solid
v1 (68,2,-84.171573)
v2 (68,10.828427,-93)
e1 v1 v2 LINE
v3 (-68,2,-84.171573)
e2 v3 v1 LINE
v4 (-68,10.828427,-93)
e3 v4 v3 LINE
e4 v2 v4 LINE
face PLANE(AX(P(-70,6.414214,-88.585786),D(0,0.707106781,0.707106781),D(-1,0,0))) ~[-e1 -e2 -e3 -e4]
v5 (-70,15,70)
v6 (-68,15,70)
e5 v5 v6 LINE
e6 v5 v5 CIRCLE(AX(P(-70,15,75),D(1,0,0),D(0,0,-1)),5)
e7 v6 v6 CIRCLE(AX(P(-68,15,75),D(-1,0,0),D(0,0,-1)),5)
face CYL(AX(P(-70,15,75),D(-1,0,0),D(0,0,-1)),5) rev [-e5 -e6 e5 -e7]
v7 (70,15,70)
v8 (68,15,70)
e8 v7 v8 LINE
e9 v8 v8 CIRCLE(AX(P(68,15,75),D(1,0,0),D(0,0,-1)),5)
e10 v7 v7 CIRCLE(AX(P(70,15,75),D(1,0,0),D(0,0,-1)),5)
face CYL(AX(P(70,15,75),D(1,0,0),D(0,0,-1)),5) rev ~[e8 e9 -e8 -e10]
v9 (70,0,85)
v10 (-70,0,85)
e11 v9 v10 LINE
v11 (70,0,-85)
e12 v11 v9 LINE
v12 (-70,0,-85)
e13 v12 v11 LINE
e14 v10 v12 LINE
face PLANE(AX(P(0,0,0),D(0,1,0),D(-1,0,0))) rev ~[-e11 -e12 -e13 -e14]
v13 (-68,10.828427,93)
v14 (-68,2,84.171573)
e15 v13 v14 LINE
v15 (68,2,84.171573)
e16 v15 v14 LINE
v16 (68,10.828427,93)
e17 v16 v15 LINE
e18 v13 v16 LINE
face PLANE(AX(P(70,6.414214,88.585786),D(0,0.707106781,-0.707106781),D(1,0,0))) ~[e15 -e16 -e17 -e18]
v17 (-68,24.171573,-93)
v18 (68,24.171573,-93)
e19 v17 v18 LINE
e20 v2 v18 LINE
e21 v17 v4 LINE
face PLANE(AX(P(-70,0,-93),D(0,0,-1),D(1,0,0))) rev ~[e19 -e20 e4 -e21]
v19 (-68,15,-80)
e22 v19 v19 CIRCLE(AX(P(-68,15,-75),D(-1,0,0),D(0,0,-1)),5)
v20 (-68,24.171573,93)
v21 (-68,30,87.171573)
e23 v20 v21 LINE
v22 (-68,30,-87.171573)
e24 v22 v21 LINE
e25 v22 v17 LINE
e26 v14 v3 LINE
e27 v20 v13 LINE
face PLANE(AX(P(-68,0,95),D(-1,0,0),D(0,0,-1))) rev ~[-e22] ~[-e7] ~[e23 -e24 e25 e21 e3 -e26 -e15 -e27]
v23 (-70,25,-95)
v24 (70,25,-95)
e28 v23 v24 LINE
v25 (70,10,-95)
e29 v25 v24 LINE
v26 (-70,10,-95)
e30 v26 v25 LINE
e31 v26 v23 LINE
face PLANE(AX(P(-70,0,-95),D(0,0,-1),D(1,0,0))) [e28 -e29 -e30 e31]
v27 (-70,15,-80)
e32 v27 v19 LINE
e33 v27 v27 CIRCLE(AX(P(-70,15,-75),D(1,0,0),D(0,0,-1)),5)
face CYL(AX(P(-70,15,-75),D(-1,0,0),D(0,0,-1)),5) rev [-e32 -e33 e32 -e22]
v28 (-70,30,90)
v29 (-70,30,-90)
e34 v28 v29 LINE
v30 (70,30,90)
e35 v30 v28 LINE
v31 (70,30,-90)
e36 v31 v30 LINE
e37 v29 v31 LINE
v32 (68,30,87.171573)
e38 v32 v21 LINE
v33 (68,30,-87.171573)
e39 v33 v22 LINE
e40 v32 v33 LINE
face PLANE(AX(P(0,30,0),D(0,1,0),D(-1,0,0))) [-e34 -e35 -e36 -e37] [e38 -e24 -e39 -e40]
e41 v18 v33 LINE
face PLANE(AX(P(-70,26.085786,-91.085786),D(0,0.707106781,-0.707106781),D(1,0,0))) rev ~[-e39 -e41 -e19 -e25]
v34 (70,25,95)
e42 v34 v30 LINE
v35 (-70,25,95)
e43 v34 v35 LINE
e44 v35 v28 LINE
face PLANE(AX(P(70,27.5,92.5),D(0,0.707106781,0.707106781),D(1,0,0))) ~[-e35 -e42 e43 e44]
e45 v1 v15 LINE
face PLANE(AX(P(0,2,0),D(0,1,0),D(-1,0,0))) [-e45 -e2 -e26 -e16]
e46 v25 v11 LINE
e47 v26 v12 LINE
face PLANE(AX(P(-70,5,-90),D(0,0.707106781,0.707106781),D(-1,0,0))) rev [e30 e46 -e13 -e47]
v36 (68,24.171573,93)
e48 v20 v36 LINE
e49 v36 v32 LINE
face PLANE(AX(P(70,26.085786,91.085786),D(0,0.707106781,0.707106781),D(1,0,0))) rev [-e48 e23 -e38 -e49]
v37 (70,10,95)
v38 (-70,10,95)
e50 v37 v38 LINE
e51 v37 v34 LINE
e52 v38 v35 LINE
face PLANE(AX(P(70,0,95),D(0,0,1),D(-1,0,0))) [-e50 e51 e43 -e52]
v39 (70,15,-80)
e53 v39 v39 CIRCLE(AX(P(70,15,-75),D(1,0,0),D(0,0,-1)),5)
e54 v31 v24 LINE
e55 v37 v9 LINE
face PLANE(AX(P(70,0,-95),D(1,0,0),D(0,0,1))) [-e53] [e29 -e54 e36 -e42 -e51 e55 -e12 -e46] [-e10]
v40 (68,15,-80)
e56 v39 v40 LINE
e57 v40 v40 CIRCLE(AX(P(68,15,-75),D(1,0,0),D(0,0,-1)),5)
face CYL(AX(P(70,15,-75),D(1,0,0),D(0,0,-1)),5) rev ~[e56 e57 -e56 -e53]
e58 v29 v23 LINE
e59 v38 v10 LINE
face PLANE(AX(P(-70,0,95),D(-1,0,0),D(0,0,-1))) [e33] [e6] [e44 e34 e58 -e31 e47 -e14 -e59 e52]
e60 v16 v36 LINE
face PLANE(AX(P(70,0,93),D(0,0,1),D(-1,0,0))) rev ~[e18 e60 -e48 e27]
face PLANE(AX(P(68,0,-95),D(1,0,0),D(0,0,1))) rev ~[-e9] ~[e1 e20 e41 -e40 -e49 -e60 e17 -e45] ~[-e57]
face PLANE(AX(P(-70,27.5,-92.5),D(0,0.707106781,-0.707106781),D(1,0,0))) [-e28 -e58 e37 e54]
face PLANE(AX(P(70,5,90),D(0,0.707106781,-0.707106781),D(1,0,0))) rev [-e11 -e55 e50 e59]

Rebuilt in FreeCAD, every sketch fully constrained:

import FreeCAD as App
import Part
import Sketcher
from FreeCAD import Vector
Q = App.Units.Quantity


def edges_at(feature, points):
    """Names of the edges that pass closest to the given points."""
    edges = feature.Shape.Edges
    near = lambda p: min(range(len(edges)), key=lambda i: edges[i].distToShape(Part.Vertex(*p))[0])
    return sorted({f"Edge{near(p) + 1}" for p in points})


def faces_at(feature, points):
    """Names of the faces that lie closest to the given points."""
    faces = feature.Shape.Faces
    near = lambda p: min(range(len(faces)), key=lambda i: faces[i].distToShape(Part.Vertex(*p))[0])
    return sorted({f"Face{near(p) + 1}" for p in points})


def add_polygon(sketch, points):
    """Adds a closed chain of lines whose ends are joined by coincident constraints."""
    first, n = sketch.GeometryCount, len(points)
    for a, b in zip(points, points[1:] + points[:1]):
        sketch.addGeometry(Part.LineSegment(App.Vector(*a, 0), App.Vector(*b, 0)), False)
    for i in range(n):
        sketch.addConstraint(Sketcher.Constraint("Coincident", first + i, 2, first + (i + 1) % n, 1))

doc = App.newDocument("Part")
body = doc.addObject("PartDesign::Body", "Body")

# Sketch on XZ plane
sketch1 = body.newObject("Sketcher::SketchObject", "Sketch")
sketch1.AttachmentSupport = (doc.getObject("XZ_Plane"), [""])
sketch1.MapMode = "FlatFace"
add_polygon(sketch1, [(-70, 95), (70, 95), (70, -95), (-70, -95)])  # lines 0-3
sketch1.addConstraint([
    Sketcher.Constraint("Horizontal", 0),
    Sketcher.Constraint("Vertical", 1),
    Sketcher.Constraint("Horizontal", 2),
    Sketcher.Constraint("Vertical", 3),
    Sketcher.Constraint("Symmetric", 0, 2, 2, 2, -1, 1),
    Sketcher.Constraint("DistanceX", 0, 1, 0, 2, Q("140 mm")),
    Sketcher.Constraint("DistanceY", 1, 2, 1, 1, Q("190 mm")),
])
pad1 = body.newObject("PartDesign::Pad", "Pad")
pad1.Profile = sketch1
pad1.Length = 30
pad1.Reversed = True
doc.recompute()

chamfer = body.newObject("PartDesign::Chamfer", "Chamfer")
chamfer.Base = (pad1, edges_at(pad1, [(0, 0, 95), (0, 0, -95)]))
chamfer.Size = 10
doc.recompute()

chamfer2 = body.newObject("PartDesign::Chamfer", "Chamfer001")
chamfer2.Base = (chamfer, edges_at(chamfer, [(0, 30, 95), (0, 30, -95)]))
chamfer2.Size = 5
doc.recompute()

thickness = body.newObject("PartDesign::Thickness", "Thickness")
thickness.Base = (chamfer2, faces_at(chamfer2, [(23.333, 30, 30)]))
thickness.Value = 2
thickness.Reversed = True
thickness.Join = "Intersection"

# Sketch on YZ plane
sketch2 = body.newObject("Sketcher::SketchObject", "Sketch001")
sketch2.AttachmentSupport = (doc.getObject("YZ_Plane"), [""])
sketch2.MapMode = "FlatFace"
sketch2.AttachmentOffset = App.Placement(Vector(0, 0, 70), App.Rotation())
sketch2.addGeometry([
    Part.Circle(Vector(15, 75, 0), Vector(0, 0, 1), 5),
    Part.Circle(Vector(15, -75, 0), Vector(0, 0, 1), 5),
], False)
sketch2.addConstraint([
    Sketcher.Constraint("Equal", 0, 1),
    Sketcher.Constraint("Symmetric", 0, 3, 1, 3, -1),
    Sketcher.Constraint("Diameter", 0, Q("10 mm")),
    Sketcher.Constraint("DistanceX", -1, 1, 0, 3, Q("15 mm")),
    Sketcher.Constraint("DistanceY", -1, 1, 0, 3, Q("75 mm")),
])
pocket1 = body.newObject("PartDesign::Pocket", "Pocket")
pocket1.Profile = sketch2
pocket1.Length = 3
doc.recompute()

mirrored = body.newObject("PartDesign::Mirrored", "Mirrored")
mirrored.Originals = [pocket1]
mirrored.MirrorPlane = (doc.getObject("YZ_Plane"), [""])
body.Tip = mirrored

doc.recompute()
